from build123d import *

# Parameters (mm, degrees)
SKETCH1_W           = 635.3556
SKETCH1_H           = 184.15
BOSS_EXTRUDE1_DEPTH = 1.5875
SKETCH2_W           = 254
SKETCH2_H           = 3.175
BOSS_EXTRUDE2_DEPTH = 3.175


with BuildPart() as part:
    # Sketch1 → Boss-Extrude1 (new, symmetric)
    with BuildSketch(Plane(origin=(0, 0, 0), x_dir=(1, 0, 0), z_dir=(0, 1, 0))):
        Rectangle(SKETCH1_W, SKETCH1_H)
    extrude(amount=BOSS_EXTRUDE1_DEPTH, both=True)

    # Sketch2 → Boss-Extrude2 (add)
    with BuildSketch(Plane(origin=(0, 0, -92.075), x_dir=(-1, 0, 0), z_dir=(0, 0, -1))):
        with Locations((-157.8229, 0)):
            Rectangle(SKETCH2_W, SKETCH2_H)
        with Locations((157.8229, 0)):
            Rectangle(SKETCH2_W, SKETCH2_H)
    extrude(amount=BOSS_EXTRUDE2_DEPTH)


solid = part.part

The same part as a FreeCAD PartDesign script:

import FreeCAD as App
import Part
import Sketcher
Q = App.Units.Quantity


def add_polygon(sketch, points):
    """Adds a closed chain of lines whose ends are joined by coincident constraints."""
    first, n = sketch.GeometryCount, len(points)
    for a, b in zip(points, points[1:] + points[:1]):
        sketch.addGeometry(Part.LineSegment(App.Vector(*a, 0), App.Vector(*b, 0)), False)
    for i in range(n):
        sketch.addConstraint(Sketcher.Constraint("Coincident", first + i, 2, first + (i + 1) % n, 1))

doc = App.newDocument("Part")
body = doc.addObject("PartDesign::Body", "Body")

# Sketch on XZ plane
sketch1 = body.newObject("Sketcher::SketchObject", "Sketch")
sketch1.AttachmentSupport = (doc.getObject("XZ_Plane"), [""])
sketch1.MapMode = "FlatFace"
add_polygon(sketch1, [(-318, -92), (-318, 92), (318, 92), (318, -92)])  # lines 0-3
sketch1.addConstraint([
    Sketcher.Constraint("Vertical", 0),
    Sketcher.Constraint("Horizontal", 1),
    Sketcher.Constraint("Vertical", 2),
    Sketcher.Constraint("Horizontal", 3),
    Sketcher.Constraint("Symmetric", 0, 2, 2, 2, -1, 1),
    Sketcher.Constraint("DistanceY", 0, 1, 0, 2, Q("7.25 in")),
    Sketcher.Constraint("DistanceX", 1, 1, 1, 2, Q("25.014 in")),
])
pad1 = body.newObject("PartDesign::Pad", "Pad")
pad1.Profile = sketch1
pad1.Length = Q("0.125 in")
pad1.Midplane = True

# Sketch on XY plane
sketch2 = body.newObject("Sketcher::SketchObject", "Sketch001")
sketch2.AttachmentSupport = (doc.getObject("XY_Plane"), [""])
sketch2.MapMode = "FlatFace"
sketch2.AttachmentOffset = App.Placement(App.Vector(0, 0, -3.625 * 25.4), App.Rotation())
add_polygon(sketch2, [(284.8, 1.6), (284.8, -1.6), (30.8, -1.6), (30.8, 1.6)])  # lines 0-3
add_polygon(sketch2, [(-30.8, 1.6), (-30.8, -1.6), (-284.8, -1.6), (-284.8, 1.6)])  # lines 4-7
sketch2.addConstraint([
    Sketcher.Constraint("Vertical", 0),
    Sketcher.Constraint("Horizontal", 1),
    Sketcher.Constraint("Vertical", 2),
    Sketcher.Constraint("Horizontal", 3),
    Sketcher.Constraint("Vertical", 4),
    Sketcher.Constraint("Horizontal", 5),
    Sketcher.Constraint("Vertical", 6),
    Sketcher.Constraint("Horizontal", 7),
    Sketcher.Constraint("Symmetric", 2, 2, 4, 2, -1, 1),
    Sketcher.Constraint("Symmetric", 0, 2, 6, 2, -1, 1),
    Sketcher.Constraint("Horizontal", 1, 2, 4, 2),
    Sketcher.Constraint("DistanceX", 1, 2, 1, 1, Q("10 in")),
    Sketcher.Constraint("DistanceY", 0, 2, 0, 1, Q("0.125 in")),
    Sketcher.Constraint("DistanceX", 4, 2, 1, 2, Q("2.427 in")),
])
pad2 = body.newObject("PartDesign::Pad", "Pad001")
pad2.Profile = sketch2
pad2.Length = Q("0.125 in")
pad2.Reversed = True

doc.recompute()
